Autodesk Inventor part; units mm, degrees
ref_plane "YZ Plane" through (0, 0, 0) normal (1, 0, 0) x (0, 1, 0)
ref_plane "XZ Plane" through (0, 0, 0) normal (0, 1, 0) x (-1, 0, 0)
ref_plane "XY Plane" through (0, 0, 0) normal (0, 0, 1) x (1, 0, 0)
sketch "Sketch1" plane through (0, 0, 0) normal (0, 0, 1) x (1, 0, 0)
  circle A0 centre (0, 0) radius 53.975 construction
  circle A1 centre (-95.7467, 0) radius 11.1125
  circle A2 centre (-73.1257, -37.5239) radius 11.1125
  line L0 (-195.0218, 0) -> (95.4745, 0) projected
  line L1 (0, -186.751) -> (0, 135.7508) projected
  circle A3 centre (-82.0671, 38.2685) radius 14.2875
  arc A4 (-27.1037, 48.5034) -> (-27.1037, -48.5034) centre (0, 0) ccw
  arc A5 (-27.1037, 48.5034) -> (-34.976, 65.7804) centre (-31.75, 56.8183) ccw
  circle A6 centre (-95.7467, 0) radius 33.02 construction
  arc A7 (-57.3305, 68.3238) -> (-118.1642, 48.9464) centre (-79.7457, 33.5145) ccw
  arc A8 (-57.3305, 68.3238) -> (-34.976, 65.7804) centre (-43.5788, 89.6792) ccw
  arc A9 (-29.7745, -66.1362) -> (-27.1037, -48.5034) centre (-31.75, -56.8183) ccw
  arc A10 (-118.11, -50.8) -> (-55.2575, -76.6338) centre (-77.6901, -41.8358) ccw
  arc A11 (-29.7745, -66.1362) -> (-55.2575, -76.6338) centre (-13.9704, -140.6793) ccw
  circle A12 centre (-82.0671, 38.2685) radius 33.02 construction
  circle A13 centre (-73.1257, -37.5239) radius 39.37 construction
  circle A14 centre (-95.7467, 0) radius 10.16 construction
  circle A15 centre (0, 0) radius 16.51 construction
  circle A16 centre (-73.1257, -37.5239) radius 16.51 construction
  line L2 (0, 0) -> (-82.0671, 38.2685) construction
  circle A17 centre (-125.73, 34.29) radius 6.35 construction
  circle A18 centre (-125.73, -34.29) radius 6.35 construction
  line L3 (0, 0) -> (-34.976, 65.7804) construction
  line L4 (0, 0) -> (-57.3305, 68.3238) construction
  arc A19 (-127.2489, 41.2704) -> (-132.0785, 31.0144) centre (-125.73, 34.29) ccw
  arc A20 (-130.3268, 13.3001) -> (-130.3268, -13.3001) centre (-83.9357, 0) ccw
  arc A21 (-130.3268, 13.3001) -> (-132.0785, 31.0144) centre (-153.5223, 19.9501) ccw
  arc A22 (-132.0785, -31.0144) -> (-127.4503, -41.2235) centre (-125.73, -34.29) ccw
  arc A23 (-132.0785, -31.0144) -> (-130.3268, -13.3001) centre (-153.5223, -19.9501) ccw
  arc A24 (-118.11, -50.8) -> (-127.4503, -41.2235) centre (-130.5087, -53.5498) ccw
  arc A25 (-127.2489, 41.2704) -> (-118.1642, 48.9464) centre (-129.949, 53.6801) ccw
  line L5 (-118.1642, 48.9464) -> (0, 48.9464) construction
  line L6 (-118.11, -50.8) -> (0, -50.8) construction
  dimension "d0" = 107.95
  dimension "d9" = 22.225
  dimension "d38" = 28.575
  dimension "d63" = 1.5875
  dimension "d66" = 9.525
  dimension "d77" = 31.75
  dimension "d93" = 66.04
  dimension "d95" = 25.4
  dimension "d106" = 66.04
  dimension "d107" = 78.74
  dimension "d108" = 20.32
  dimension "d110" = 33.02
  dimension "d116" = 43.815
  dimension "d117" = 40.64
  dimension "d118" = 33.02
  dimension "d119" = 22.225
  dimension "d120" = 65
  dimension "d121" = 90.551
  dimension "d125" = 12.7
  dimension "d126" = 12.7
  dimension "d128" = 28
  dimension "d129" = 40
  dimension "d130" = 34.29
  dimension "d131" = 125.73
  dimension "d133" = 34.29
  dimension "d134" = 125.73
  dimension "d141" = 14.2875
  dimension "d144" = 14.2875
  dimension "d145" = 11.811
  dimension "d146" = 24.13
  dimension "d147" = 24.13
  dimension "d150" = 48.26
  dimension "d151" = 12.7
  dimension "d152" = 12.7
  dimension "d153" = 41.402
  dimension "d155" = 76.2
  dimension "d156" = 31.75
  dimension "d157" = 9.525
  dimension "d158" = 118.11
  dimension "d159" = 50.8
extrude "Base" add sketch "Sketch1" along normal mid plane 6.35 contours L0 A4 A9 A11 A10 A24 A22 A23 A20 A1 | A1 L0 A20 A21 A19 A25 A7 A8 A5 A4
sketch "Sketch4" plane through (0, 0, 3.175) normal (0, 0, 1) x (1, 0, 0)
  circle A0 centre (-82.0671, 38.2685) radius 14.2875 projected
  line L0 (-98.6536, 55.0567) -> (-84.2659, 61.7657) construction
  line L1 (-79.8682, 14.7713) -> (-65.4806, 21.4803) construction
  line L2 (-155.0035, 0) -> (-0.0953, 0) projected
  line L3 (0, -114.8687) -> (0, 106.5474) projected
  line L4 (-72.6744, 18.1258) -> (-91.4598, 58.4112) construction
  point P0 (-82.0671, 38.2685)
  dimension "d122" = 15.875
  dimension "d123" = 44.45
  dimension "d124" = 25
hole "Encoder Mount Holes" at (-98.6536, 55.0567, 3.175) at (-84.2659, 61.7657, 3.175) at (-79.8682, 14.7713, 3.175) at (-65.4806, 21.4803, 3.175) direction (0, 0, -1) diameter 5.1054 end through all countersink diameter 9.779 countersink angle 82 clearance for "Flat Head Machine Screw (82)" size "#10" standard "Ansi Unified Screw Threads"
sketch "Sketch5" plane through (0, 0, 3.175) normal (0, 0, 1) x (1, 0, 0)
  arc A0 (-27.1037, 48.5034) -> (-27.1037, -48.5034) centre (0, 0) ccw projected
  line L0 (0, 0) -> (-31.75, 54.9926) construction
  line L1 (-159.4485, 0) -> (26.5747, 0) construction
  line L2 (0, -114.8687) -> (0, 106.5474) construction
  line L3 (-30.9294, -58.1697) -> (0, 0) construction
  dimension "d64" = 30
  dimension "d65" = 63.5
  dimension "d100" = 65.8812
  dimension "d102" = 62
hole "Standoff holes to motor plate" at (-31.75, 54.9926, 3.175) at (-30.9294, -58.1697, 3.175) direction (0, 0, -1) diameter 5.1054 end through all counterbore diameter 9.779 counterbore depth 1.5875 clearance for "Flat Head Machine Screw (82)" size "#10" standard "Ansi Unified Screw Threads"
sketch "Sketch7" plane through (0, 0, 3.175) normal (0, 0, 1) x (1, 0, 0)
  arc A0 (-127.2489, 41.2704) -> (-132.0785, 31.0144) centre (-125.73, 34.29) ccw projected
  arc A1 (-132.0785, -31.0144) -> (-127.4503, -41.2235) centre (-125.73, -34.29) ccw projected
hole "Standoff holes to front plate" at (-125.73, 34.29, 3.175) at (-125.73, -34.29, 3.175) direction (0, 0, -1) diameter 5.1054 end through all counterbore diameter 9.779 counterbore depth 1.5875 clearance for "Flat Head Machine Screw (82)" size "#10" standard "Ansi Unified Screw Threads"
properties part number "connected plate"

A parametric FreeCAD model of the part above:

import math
import FreeCAD as App
import Part
import Sketcher
Q = App.Units.Quantity

doc = App.newDocument("Part")
params = doc.addObject("Spreadsheet::Sheet", "Params")
for row, (alias, value) in enumerate([
    ("sketch1_radius", "1 in"),
    ("sketch1_radius2", "0.5 in"),
    ("sketch1_radius3", "1.9 in"),
    ("sketch1_radius4", "1.63 in"),
    ("sketch1_radius5", "0.95 in"),
    ("pad1_length", "0.25 in"),
    ("sketch2_diameter", "0.201 in"),
    ("hole_diameter", "0.201 in"),
    ("hole_csink_diameter", "0.385 in"),
    ("sketch3_diameter", "0.201 in"),
    ("hole2_diameter", "0.201 in"),
    ("hole2_cbore_diameter", "0.385 in"),
    ("hole2_cbore_depth", "0.0625 in"),
    ("sketch4_diameter", "0.201 in"),
    ("hole3_diameter", "0.201 in"),
    ("hole3_cbore_diameter", "0.385 in"),
    ("hole3_cbore_depth", "0.0625 in"),
], start=1):
    params.set(f"A{row}", alias)
    params.set(f"B{row}", "=" + value)
    params.setAlias(f"B{row}", alias)

body = doc.addObject("PartDesign::Body", "Body")

sketch1 = body.newObject("Sketcher::SketchObject", "Sketch")
sketch1.AttachmentSupport = (doc.getObject("XY_Plane"), [""])
sketch1.MapMode = "FlatFace"
sketch1.addGeometry(Part.ArcOfCircle(Part.Circle(App.Vector(0, 0, 0), App.Vector(0, 0, 1), 56), math.radians(119), math.radians(241)), False)
sketch1.addGeometry(Part.ArcOfCircle(Part.Circle(App.Vector(-32, 57, 0), App.Vector(0, 0, 1), 10), math.radians(-61), math.radians(110)), False)
sketch1.addGeometry(Part.ArcOfCircle(Part.Circle(App.Vector(-44, 90, 0), App.Vector(0, 0, 1), 25), math.radians(-123), math.radians(-70)), False)
sketch1.addGeometry(Part.ArcOfCircle(Part.Circle(App.Vector(-80, 34, 0), App.Vector(0, 0, 1), 41), math.radians(57), math.radians(158)), False)
sketch1.addGeometry(Part.ArcOfCircle(Part.Circle(App.Vector(-130, 54, 0), App.Vector(0, 0, 1), 13), math.radians(-78), math.radians(-22)), False)
sketch1.addGeometry(Part.ArcOfCircle(Part.Circle(App.Vector(-126, 34, 0), App.Vector(0, 0, 1), 7), math.radians(102), math.radians(207)), False)
sketch1.addGeometry(Part.ArcOfCircle(Part.Circle(App.Vector(-154, 20, 0), App.Vector(0, 0, 1), 24), math.radians(-16), math.radians(27)), False)
sketch1.addGeometry(Part.ArcOfCircle(Part.Circle(App.Vector(-84, 0, 0), App.Vector(0, 0, 1), 48), math.radians(164), math.radians(196)), False)
sketch1.addGeometry(Part.ArcOfCircle(Part.Circle(App.Vector(-154, -20, 0), App.Vector(0, 0, 1), 24), math.radians(-27), math.radians(16)), False)
sketch1.addGeometry(Part.ArcOfCircle(Part.Circle(App.Vector(-126, -34, 0), App.Vector(0, 0, 1), 7), math.radians(153), math.radians(256)), False)
sketch1.addGeometry(Part.ArcOfCircle(Part.Circle(App.Vector(-131, -54, 0), App.Vector(0, 0, 1), 13), math.radians(13), math.radians(76)), False)
sketch1.addGeometry(Part.ArcOfCircle(Part.Circle(App.Vector(-78, -42, 0), App.Vector(0, 0, 1), 41), math.radians(-167), math.radians(-57)), False)
sketch1.addGeometry(Part.ArcOfCircle(Part.Circle(App.Vector(-14, -141, 0), App.Vector(0, 0, 1), 76), math.radians(102), math.radians(123)), False)
sketch1.addGeometry(Part.ArcOfCircle(Part.Circle(App.Vector(-32, -57, 0), App.Vector(0, 0, 1), 10), math.radians(-78), math.radians(61)), False)
sketch1.addGeometry(Part.Circle(App.Vector(-96, 0, 0), App.Vector(0, 0, 1), 11), False)
sketch1.addGeometry(Part.Circle(App.Vector(-73, -38, 0), App.Vector(0, 0, 1), 11), False)
sketch1.addGeometry(Part.Circle(App.Vector(-82, 38, 0), App.Vector(0, 0, 1), 14), False)
sketch1.addConstraint(Sketcher.Constraint("Tangent", 0, 1, 1, 1))
sketch1.addConstraint(Sketcher.Constraint("Tangent", 1, 2, 2, 2))
sketch1.addConstraint(Sketcher.Constraint("Tangent", 2, 1, 3, 1))
sketch1.addConstraint(Sketcher.Constraint("Tangent", 3, 2, 4, 2))
sketch1.addConstraint(Sketcher.Constraint("Tangent", 4, 1, 5, 1))
sketch1.addConstraint(Sketcher.Constraint("Tangent", 5, 2, 6, 2))
sketch1.addConstraint(Sketcher.Constraint("Tangent", 6, 1, 7, 1))
sketch1.addConstraint(Sketcher.Constraint("Tangent", 7, 2, 8, 2))
sketch1.addConstraint(Sketcher.Constraint("Tangent", 8, 1, 9, 1))
sketch1.addConstraint(Sketcher.Constraint("Tangent", 9, 2, 10, 2))
sketch1.addConstraint(Sketcher.Constraint("Tangent", 10, 1, 11, 1))
sketch1.addConstraint(Sketcher.Constraint("Tangent", 11, 2, 12, 2))
sketch1.addConstraint(Sketcher.Constraint("Tangent", 12, 1, 13, 1))
sketch1.addConstraint(Sketcher.Constraint("Tangent", 13, 2, 0, 2))
sketch1.addConstraint(Sketcher.Constraint("Coincident", 0, 3, -1, 1))
sketch1.addConstraint(Sketcher.Constraint("Equal", 6, 8))
sketch1.addConstraint(Sketcher.Constraint("Equal", 5, 9))
sketch1.addConstraint(Sketcher.Constraint("Equal", 4, 10))
sketch1.addConstraint(Sketcher.Constraint("Equal", 3, 11))
sketch1.addConstraint(Sketcher.Constraint("Equal", 1, 13))
sketch1.addConstraint(Sketcher.Constraint("Equal", 14, 15))
sketch1.addConstraint(Sketcher.Constraint("Symmetric", 6, 3, 8, 3, -1))
sketch1.addConstraint(Sketcher.Constraint("PointOnObject", 14, 3, -1))
sketch1.addConstraint(Sketcher.Constraint("Vertical", 5, 3, 9, 3))
sketch1.addConstraint(Sketcher.Constraint("Vertical", 1, 3, 13, 3))
sketch1.addConstraint(Sketcher.Constraint("Radius", 2, Q("1 in")))
sketch1.addConstraint(Sketcher.Constraint("Radius", 4, Q("0.5 in")))
sketch1.addConstraint(Sketcher.Constraint("Radius", 7, Q("1.9 in")))
sketch1.addConstraint(Sketcher.Constraint("Radius", 3, Q("1.63 in")))
sketch1.addConstraint(Sketcher.Constraint("Radius", 6, Q("0.95 in")))
sketch1.addConstraint(Sketcher.Constraint("Diameter", 14, Q("0.875 in")))
sketch1.addConstraint(Sketcher.Constraint("Diameter", 16, Q("1.125 in")))
sketch1.addConstraint(Sketcher.Constraint("DistanceY", 10, 1, -1, 1, Q("2 in")))
sketch1.addConstraint(Sketcher.Constraint("Radius", 1, Q("0.375 in")))
sketch1.addConstraint(Sketcher.Constraint("Radius", 5, Q("0.281248 in")))
sketch1.addConstraint(Sketcher.Constraint("DistanceX", 1, 3, -1, 1, Q("1.25 in")))
sketch1.addConstraint(Sketcher.Constraint("DistanceX", 5, 3, -1, 1, Q("4.95 in")))
sketch1.addConstraint(Sketcher.Constraint("DistanceY", -1, 1, 5, 3, Q("1.35 in")))
sketch1.addConstraint(Sketcher.Constraint("DistanceX", 10, 1, -1, 1, Q("4.65 in")))
sketch1.addConstraint(Sketcher.Constraint("Radius", 0, Q("2.1875 in")))
sketch1.addConstraint(Sketcher.Constraint("DistanceX", 14, 3, 7, 3, Q("0.465 in")))
sketch1.addConstraint(Sketcher.Constraint("DistanceX", 9, 3, 12, 3, Q("4.4 in")))
sketch1.addConstraint(Sketcher.Constraint("DistanceX", 16, 3, -1, 1, Q("3.231 in")))
sketch1.addConstraint(Sketcher.Constraint("DistanceX", 1, 2, -1, 1, Q("1.377 in")))
sketch1.addConstraint(Sketcher.Constraint("DistanceX", 3, 3, -1, 1, Q("3.1396 in")))
sketch1.addConstraint(Sketcher.Constraint("DistanceX", 6, 3, 3, 3, Q("2.9046 in")))
sketch1.addConstraint(Sketcher.Constraint("DistanceX", 11, 3, 15, 3, Q("0.1797 in")))
sketch1.addConstraint(Sketcher.Constraint("DistanceY", 16, 3, 3, 2, Q("0.4204 in")))
sketch1.addConstraint(Sketcher.Constraint("DistanceY", 15, 3, -1, 1, 37.524))
sketch1.setExpression("Constraints[25]", "Params.sketch1_radius")
sketch1.setExpression("Constraints[26]", "Params.sketch1_radius2")
sketch1.setExpression("Constraints[27]", "Params.sketch1_radius3")
sketch1.setExpression("Constraints[28]", "Params.sketch1_radius4")
sketch1.setExpression("Constraints[29]", "Params.sketch1_radius5")
pad1 = body.newObject("PartDesign::Pad", "Pad")
pad1.Profile = sketch1
pad1.setExpression("Length", "Params.pad1_length")
pad1.Midplane = True

sketch2 = body.newObject("Sketcher::SketchObject", "Sketch001")
sketch2.AttachmentSupport = (doc.getObject("XY_Plane"), [""])
sketch2.MapMode = "FlatFace"
sketch2.AttachmentOffset = App.Placement(App.Vector(0, 0, 0.125 * 25.4), App.Rotation())
sketch2.addGeometry(Part.Circle(App.Vector(-98.7, 55.1, 0), App.Vector(0, 0, 1), 2.6), False)
sketch2.addGeometry(Part.Circle(App.Vector(-84.3, 61.8, 0), App.Vector(0, 0, 1), 2.6), False)
sketch2.addGeometry(Part.Circle(App.Vector(-79.9, 14.8, 0), App.Vector(0, 0, 1), 2.6), False)
sketch2.addGeometry(Part.Circle(App.Vector(-65.5, 21.5, 0), App.Vector(0, 0, 1), 2.6), False)
sketch2.addConstraint(Sketcher.Constraint("Equal", 0, 1))
sketch2.addConstraint(Sketcher.Constraint("Equal", 1, 2))
sketch2.addConstraint(Sketcher.Constraint("Equal", 2, 3))
sketch2.addConstraint(Sketcher.Constraint("Diameter", 0, Q("0.201 in")))
sketch2.addConstraint(Sketcher.Constraint("DistanceX", 0, 3, -1, 1, Q("3.884 in")))
sketch2.addConstraint(Sketcher.Constraint("DistanceY", 3, 3, 0, 3, Q("1.3219 in")))
sketch2.addConstraint(Sketcher.Constraint("DistanceY", -1, 1, 0, 3, 55.0567))
sketch2.addConstraint(Sketcher.Constraint("DistanceX", 1, 3, -1, 1, 84.266))
sketch2.addConstraint(Sketcher.Constraint("DistanceY", -1, 1, 1, 3, 61.7657))
sketch2.addConstraint(Sketcher.Constraint("DistanceX", 2, 3, -1, 1, 79.8682))
sketch2.addConstraint(Sketcher.Constraint("DistanceY", -1, 1, 2, 3, 14.7713))
sketch2.addConstraint(Sketcher.Constraint("DistanceX", 3, 3, -1, 1, 65.4806))
sketch2.setExpression("Constraints[3]", "Params.sketch2_diameter")
doc.recompute()
hole = body.newObject("PartDesign::Hole", "Hole")
hole.Profile = sketch2
hole.ThreadType = "None"
hole.setExpression("Diameter", "Params.hole_diameter")
hole.DepthType = "ThroughAll"
hole.HoleCutType = "Countersink"
hole.setExpression("HoleCutDiameter", "Params.hole_csink_diameter")
hole.HoleCutCountersinkAngle = 82

sketch3 = body.newObject("Sketcher::SketchObject", "Sketch002")
sketch3.AttachmentSupport = (doc.getObject("XY_Plane"), [""])
sketch3.MapMode = "FlatFace"
sketch3.AttachmentOffset = App.Placement(App.Vector(0, 0, 0.125 * 25.4), App.Rotation())
sketch3.addGeometry(Part.Circle(App.Vector(-31.8, 55, 0), App.Vector(0, 0, 1), 2.6), False)
sketch3.addGeometry(Part.Circle(App.Vector(-30.9, -58.2, 0), App.Vector(0, 0, 1), 2.6), False)
sketch3.addConstraint(Sketcher.Constraint("Equal", 0, 1))
sketch3.addConstraint(Sketcher.Constraint("Diameter", 0, Q("0.201 in")))
sketch3.addConstraint(Sketcher.Constraint("DistanceX", 0, 3, -1, 1, Q("1.25 in")))
sketch3.addConstraint(Sketcher.Constraint("DistanceX", 1, 3, -1, 1, Q("1.2177 in")))
sketch3.addConstraint(Sketcher.Constraint("DistanceY", 1, 3, 0, 3, Q("4.4552 in")))
sketch3.addConstraint(Sketcher.Constraint("DistanceY", -1, 1, 0, 3, 54.9926))
sketch3.setExpression("Constraints[1]", "Params.sketch3_diameter")
doc.recompute()
hole2 = body.newObject("PartDesign::Hole", "Hole001")
hole2.Profile = sketch3
hole2.ThreadType = "None"
hole2.setExpression("Diameter", "Params.hole2_diameter")
hole2.DepthType = "ThroughAll"
hole2.HoleCutType = "Counterbore"
hole2.setExpression("HoleCutDiameter", "Params.hole2_cbore_diameter")
hole2.setExpression("HoleCutDepth", "Params.hole2_cbore_depth")

sketch4 = body.newObject("Sketcher::SketchObject", "Sketch003")
sketch4.AttachmentSupport = (doc.getObject("XY_Plane"), [""])
sketch4.MapMode = "FlatFace"
sketch4.AttachmentOffset = App.Placement(App.Vector(0, 0, 0.125 * 25.4), App.Rotation())
sketch4.addGeometry(Part.Circle(App.Vector(-125.7, 34.3, 0), App.Vector(0, 0, 1), 2.6), False)
sketch4.addGeometry(Part.Circle(App.Vector(-125.7, -34.3, 0), App.Vector(0, 0, 1), 2.6), False)
sketch4.addConstraint(Sketcher.Constraint("Equal", 0, 1))
sketch4.addConstraint(Sketcher.Constraint("Symmetric", 0, 3, 1, 3, -1))
sketch4.addConstraint(Sketcher.Constraint("Diameter", 0, Q("0.201 in")))
sketch4.addConstraint(Sketcher.Constraint("DistanceY", 1, 3, 0, 3, Q("2.7 in")))
sketch4.addConstraint(Sketcher.Constraint("DistanceX", 0, 3, -1, 1, Q("4.95 in")))
sketch4.setExpression("Constraints[2]", "Params.sketch4_diameter")
doc.recompute()
hole3 = body.newObject("PartDesign::Hole", "Hole002")
hole3.Profile = sketch4
hole3.ThreadType = "None"
hole3.setExpression("Diameter", "Params.hole3_diameter")
hole3.DepthType = "ThroughAll"
hole3.HoleCutType = "Counterbore"
hole3.setExpression("HoleCutDiameter", "Params.hole3_cbore_diameter")
hole3.setExpression("HoleCutDepth", "Params.hole3_cbore_depth")

doc.recompute()
